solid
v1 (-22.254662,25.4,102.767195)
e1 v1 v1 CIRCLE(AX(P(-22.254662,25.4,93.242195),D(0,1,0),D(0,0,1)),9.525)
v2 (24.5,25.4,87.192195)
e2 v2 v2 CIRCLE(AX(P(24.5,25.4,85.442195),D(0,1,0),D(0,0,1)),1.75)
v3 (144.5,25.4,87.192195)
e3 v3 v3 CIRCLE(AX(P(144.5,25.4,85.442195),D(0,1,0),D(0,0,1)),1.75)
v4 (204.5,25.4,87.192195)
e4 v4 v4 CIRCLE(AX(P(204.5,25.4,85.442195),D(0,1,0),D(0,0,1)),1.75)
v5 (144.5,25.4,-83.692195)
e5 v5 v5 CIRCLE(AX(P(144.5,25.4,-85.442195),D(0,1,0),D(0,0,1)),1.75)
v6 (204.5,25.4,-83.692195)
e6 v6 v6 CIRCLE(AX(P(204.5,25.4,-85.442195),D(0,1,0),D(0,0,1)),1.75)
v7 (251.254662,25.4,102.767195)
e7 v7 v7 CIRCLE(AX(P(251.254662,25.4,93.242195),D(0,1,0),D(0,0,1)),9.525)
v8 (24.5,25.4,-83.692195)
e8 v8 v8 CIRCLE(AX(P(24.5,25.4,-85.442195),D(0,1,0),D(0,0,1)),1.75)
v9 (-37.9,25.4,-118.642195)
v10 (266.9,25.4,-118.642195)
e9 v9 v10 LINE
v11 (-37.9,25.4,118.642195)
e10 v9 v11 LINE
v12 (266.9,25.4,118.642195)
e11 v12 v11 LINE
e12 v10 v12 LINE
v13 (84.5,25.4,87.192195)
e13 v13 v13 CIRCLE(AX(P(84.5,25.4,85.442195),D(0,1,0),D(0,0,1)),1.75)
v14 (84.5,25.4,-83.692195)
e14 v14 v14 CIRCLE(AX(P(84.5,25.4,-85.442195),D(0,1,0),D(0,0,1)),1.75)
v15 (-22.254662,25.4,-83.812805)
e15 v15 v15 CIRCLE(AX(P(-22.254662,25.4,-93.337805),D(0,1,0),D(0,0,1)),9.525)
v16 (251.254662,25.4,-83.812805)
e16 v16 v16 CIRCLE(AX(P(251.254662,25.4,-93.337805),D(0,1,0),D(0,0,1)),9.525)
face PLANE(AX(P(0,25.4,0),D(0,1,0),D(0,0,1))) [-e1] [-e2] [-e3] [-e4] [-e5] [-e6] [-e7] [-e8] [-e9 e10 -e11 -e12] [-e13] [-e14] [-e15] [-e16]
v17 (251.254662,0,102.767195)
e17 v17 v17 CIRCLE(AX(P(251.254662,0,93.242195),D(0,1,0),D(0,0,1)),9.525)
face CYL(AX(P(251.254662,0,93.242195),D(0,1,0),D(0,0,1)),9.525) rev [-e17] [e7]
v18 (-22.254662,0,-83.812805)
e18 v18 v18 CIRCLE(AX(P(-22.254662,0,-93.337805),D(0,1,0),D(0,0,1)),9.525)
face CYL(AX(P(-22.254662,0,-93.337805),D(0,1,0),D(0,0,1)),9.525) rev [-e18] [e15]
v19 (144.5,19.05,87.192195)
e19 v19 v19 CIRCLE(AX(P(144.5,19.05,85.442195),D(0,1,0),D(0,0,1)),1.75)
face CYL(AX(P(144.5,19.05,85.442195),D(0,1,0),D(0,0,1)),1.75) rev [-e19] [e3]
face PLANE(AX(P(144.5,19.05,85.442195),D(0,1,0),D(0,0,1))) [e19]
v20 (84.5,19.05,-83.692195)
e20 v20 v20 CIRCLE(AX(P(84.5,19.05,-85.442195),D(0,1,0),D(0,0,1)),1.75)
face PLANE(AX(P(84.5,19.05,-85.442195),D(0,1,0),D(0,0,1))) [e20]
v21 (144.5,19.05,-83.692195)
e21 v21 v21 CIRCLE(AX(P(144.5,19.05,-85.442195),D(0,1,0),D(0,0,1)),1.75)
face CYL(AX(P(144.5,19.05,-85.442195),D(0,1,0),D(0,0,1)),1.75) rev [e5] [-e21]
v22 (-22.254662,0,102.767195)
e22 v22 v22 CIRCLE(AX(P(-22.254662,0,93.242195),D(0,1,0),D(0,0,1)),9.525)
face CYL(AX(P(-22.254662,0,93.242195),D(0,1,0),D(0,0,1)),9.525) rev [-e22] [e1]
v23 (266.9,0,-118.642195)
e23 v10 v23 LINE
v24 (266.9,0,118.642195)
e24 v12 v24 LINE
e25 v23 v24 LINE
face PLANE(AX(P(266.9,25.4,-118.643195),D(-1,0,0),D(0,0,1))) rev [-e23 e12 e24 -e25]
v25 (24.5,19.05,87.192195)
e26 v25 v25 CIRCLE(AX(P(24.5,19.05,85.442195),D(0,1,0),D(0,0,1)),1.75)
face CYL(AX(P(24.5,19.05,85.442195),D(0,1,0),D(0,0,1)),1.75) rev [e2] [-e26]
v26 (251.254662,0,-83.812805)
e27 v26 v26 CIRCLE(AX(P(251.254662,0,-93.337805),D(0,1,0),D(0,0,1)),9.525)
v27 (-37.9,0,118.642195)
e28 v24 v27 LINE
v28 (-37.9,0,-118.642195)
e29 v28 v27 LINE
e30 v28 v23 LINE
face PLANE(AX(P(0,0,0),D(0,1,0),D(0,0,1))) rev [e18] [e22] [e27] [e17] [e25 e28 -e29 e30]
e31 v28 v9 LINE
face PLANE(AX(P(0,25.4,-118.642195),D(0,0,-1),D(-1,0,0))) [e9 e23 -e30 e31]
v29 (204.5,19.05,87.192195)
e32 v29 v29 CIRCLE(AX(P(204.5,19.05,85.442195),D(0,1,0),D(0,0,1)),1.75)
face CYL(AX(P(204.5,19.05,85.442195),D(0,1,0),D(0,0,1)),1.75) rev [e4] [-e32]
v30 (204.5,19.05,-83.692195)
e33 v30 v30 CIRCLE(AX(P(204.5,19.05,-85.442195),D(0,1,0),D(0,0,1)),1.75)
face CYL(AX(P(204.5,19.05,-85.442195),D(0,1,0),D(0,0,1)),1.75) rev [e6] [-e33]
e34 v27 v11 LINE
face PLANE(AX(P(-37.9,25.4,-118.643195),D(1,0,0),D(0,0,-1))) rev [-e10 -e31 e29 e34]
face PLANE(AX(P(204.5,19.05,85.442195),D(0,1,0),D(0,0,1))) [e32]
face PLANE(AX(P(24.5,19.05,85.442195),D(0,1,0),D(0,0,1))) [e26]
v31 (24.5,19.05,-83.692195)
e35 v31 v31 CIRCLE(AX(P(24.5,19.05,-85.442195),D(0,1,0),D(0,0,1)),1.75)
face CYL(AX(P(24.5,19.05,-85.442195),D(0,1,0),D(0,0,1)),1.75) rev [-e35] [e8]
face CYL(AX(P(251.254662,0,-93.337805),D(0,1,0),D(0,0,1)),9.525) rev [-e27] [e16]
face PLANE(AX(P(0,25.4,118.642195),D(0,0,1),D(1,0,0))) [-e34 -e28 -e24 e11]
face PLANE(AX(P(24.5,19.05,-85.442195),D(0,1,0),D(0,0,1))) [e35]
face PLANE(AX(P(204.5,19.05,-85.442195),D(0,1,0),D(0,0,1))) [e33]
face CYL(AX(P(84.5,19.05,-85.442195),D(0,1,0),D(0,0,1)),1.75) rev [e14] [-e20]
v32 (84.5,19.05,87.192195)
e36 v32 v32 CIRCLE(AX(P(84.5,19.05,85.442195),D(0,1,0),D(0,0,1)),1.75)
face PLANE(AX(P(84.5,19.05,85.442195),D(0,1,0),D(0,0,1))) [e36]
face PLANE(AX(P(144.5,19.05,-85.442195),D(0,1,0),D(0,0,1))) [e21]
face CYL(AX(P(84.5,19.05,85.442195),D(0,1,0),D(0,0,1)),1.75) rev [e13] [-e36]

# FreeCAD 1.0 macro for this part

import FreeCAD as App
import Part
import Sketcher

V = App.Vector
Q = App.Units.Quantity

doc = App.newDocument("Part")
body = doc.addObject("PartDesign::Body", "Body")

sketch1 = body.newObject("Sketcher::SketchObject", "Sketch")
sketch1.AttachmentSupport = (doc.getObject("XZ_Plane"), [""])
sketch1.MapMode = "FlatFace"
sketch1.addGeometry(Part.LineSegment(V(-44.479662, -118.642195, 0), V(-44.479662, 118.642195, 0)), False)
sketch1.addGeometry(Part.LineSegment(V(-44.479662, 118.642195, 0), V(273.479662, 118.642195, 0)), False)
sketch1.addGeometry(Part.LineSegment(V(273.479662, 118.642195, 0), V(273.479662, -118.642195, 0)), False)
sketch1.addGeometry(Part.LineSegment(V(273.479662, -118.642195, 0), V(-44.479662, -118.642195, 0)), False)
sketch1.addConstraint(Sketcher.Constraint("Coincident", 0, 2, 1, 1))
sketch1.addConstraint(Sketcher.Constraint("Coincident", 1, 2, 2, 1))
sketch1.addConstraint(Sketcher.Constraint("Coincident", 2, 2, 3, 1))
sketch1.addConstraint(Sketcher.Constraint("Coincident", 3, 2, 0, 1))
sketch1.addConstraint(Sketcher.Constraint("Vertical", 0))
sketch1.addConstraint(Sketcher.Constraint("Horizontal", 1))
sketch1.addConstraint(Sketcher.Constraint("Vertical", 2))
sketch1.addConstraint(Sketcher.Constraint("Horizontal", 3))
sketch1.addConstraint(Sketcher.Constraint("DistanceY", 0, 1, 0, 2, 237.284389))
sketch1.addConstraint(Sketcher.Constraint("DistanceX", 1, 1, 1, 2, 317.959323))
sketch1.addConstraint(Sketcher.Constraint("DistanceX", 0, 2, -1, 1, 44.479662))
sketch1.addConstraint(Sketcher.Constraint("DistanceY", -1, 1, 0, 2, 118.642195))
pad1 = body.newObject("PartDesign::Pad", "Pad")
pad1.Profile = sketch1
pad1.Length = Q("1 in")
pad1.Reversed = True

sketch2 = body.newObject("Sketcher::SketchObject", "Sketch001")
sketch2.AttachmentSupport = (doc.getObject("XZ_Plane"), [""])
sketch2.MapMode = "FlatFace"
sketch2.AttachmentOffset = App.Placement(V(0, 0, -1 * 25.4), App.Rotation())
sketch2.addGeometry(Part.Circle(V(24.5, -85.442195, 0), V(0, 0, 1), 1.75), False)
sketch2.addGeometry(Part.Circle(V(84.5, -85.442195, 0), V(0, 0, 1), 1.75), False)
sketch2.addGeometry(Part.Circle(V(144.5, -85.442195, 0), V(0, 0, 1), 1.75), False)
sketch2.addGeometry(Part.Circle(V(204.5, -85.442195, 0), V(0, 0, 1), 1.75), False)
sketch2.addGeometry(Part.Circle(V(24.5, 85.442195, 0), V(0, 0, 1), 1.75), False)
sketch2.addGeometry(Part.Circle(V(84.5, 85.442195, 0), V(0, 0, 1), 1.75), False)
sketch2.addGeometry(Part.Circle(V(144.5, 85.442195, 0), V(0, 0, 1), 1.75), False)
sketch2.addGeometry(Part.Circle(V(204.5, 85.442195, 0), V(0, 0, 1), 1.75), False)
sketch2.addConstraint(Sketcher.Constraint("Equal", 0, 1))
sketch2.addConstraint(Sketcher.Constraint("Equal", 1, 2))
sketch2.addConstraint(Sketcher.Constraint("Equal", 2, 3))
sketch2.addConstraint(Sketcher.Constraint("Equal", 3, 4))
sketch2.addConstraint(Sketcher.Constraint("Equal", 4, 5))
sketch2.addConstraint(Sketcher.Constraint("Equal", 5, 6))
sketch2.addConstraint(Sketcher.Constraint("Equal", 6, 7))
sketch2.addConstraint(Sketcher.Constraint("Symmetric", 0, 3, 4, 3, -1))
sketch2.addConstraint(Sketcher.Constraint("Symmetric", 1, 3, 5, 3, -1))
sketch2.addConstraint(Sketcher.Constraint("Symmetric", 2, 3, 6, 3, -1))
sketch2.addConstraint(Sketcher.Constraint("Symmetric", 3, 3, 7, 3, -1))
sketch2.addConstraint(Sketcher.Constraint("Horizontal", 0, 3, 1, 3))
sketch2.addConstraint(Sketcher.Constraint("Horizontal", 1, 3, 2, 3))
sketch2.addConstraint(Sketcher.Constraint("Horizontal", 2, 3, 3, 3))
sketch2.addConstraint(Sketcher.Constraint("Diameter", 0, 3.5))
sketch2.addConstraint(Sketcher.Constraint("DistanceX", -1, 1, 0, 3, 24.5))
sketch2.addConstraint(Sketcher.Constraint("DistanceX", -1, 1, 1, 3, 84.5))
sketch2.addConstraint(Sketcher.Constraint("DistanceX", -1, 1, 2, 3, 144.5))
sketch2.addConstraint(Sketcher.Constraint("DistanceX", -1, 1, 3, 3, 204.5))
sketch2.addConstraint(Sketcher.Constraint("DistanceY", 0, 3, 4, 3, 170.884389))
pocket1 = body.newObject("PartDesign::Pocket", "Pocket")
pocket1.Profile = sketch2
pocket1.Length = Q("0.25 in")
pocket1.Reversed = True

sketch3 = body.newObject("Sketcher::SketchObject", "Sketch002")
sketch3.AttachmentSupport = (doc.getObject("XZ_Plane"), [""])
sketch3.MapMode = "FlatFace"
sketch3.AttachmentOffset = App.Placement(V(0, 0, -1 * 25.4), App.Rotation())
sketch3.addGeometry(Part.Circle(V(-22.254662, 93.242195, 0), V(0, 0, 1), 9.525), False)
sketch3.addGeometry(Part.Circle(V(251.254662, 93.242195, 0), V(0, 0, 1), 9.525), False)
sketch3.addGeometry(Part.Circle(V(251.254662, -93.337805, 0), V(0, 0, 1), 9.525), False)
sketch3.addGeometry(Part.Circle(V(-22.254662, -93.337805, 0), V(0, 0, 1), 9.525), False)
sketch3.addConstraint(Sketcher.Constraint("Equal", 0, 1))
sketch3.addConstraint(Sketcher.Constraint("Equal", 1, 2))
sketch3.addConstraint(Sketcher.Constraint("Equal", 2, 3))
sketch3.addConstraint(Sketcher.Constraint("Horizontal", 0, 3, 1, 3))
sketch3.addConstraint(Sketcher.Constraint("Horizontal", 2, 3, 3, 3))
sketch3.addConstraint(Sketcher.Constraint("Vertical", 1, 3, 2, 3))
sketch3.addConstraint(Sketcher.Constraint("Vertical", 0, 3, 3, 3))
sketch3.addConstraint(Sketcher.Constraint("Diameter", 0, Q("0.75 in")))
sketch3.addConstraint(Sketcher.Constraint("DistanceY", 2, 3, 1, 3, 186.58))
sketch3.addConstraint(Sketcher.Constraint("DistanceX", 0, 3, -1, 1, 22.254662))
sketch3.addConstraint(Sketcher.Constraint("DistanceX", -1, 1, 1, 3, 251.254662))
sketch3.addConstraint(Sketcher.Constraint("DistanceY", -1, 1, 0, 3, 93.242195))
pocket2 = body.newObject("PartDesign::Pocket", "Pocket001")
pocket2.Profile = sketch3
pocket2.Type = "ThroughAll"
pocket2.Reversed = True

sketch4 = body.newObject("Sketcher::SketchObject", "Sketch003")
sketch4.AttachmentSupport = (doc.getObject("XY_Plane"), [""])
sketch4.MapMode = "FlatFace"
sketch4.AttachmentOffset = App.Placement(V(0, 0, 118.642195), App.Rotation())
sketch4.addGeometry(Part.LineSegment(V(-49.675931, 25.4, 0), V(-49.675931, 0, 0)), False)
sketch4.addGeometry(Part.LineSegment(V(-49.675931, 0, 0), V(-37.9, 0, 0)), False)
sketch4.addGeometry(Part.LineSegment(V(-37.9, 0, 0), V(-37.9, 25.4, 0)), False)
sketch4.addGeometry(Part.LineSegment(V(-37.9, 25.4, 0), V(-49.675931, 25.4, 0)), False)
sketch4.addConstraint(Sketcher.Constraint("Coincident", 0, 2, 1, 1))
sketch4.addConstraint(Sketcher.Constraint("Coincident", 1, 2, 2, 1))
sketch4.addConstraint(Sketcher.Constraint("Coincident", 2, 2, 3, 1))
sketch4.addConstraint(Sketcher.Constraint("Coincident", 3, 2, 0, 1))
sketch4.addConstraint(Sketcher.Constraint("Vertical", 0))
sketch4.addConstraint(Sketcher.Constraint("Horizontal", 1))
sketch4.addConstraint(Sketcher.Constraint("Vertical", 2))
sketch4.addConstraint(Sketcher.Constraint("Horizontal", 3))
sketch4.addConstraint(Sketcher.Constraint("PointOnObject", 0, 2, -1))
sketch4.addConstraint(Sketcher.Constraint("DistanceY", 0, 2, 0, 1, Q("1 in")))
sketch4.addConstraint(Sketcher.Constraint("DistanceX", 1, 1, 1, 2, 11.775931))
sketch4.addConstraint(Sketcher.Constraint("DistanceX", 1, 2, -1, 1, 37.9))
pocket3 = body.newObject("PartDesign::Pocket", "Pocket002")
pocket3.Profile = sketch4
pocket3.Type = "UpToFirst"

sketch5 = body.newObject("Sketcher::SketchObject", "Sketch004")
sketch5.AttachmentSupport = (doc.getObject("XY_Plane"), [""])
sketch5.MapMode = "FlatFace"
sketch5.AttachmentOffset = App.Placement(V(0, 0, 118.642195), App.Rotation())
sketch5.addGeometry(Part.LineSegment(V(266.9, 25.4, 0), V(266.9, 0, 0)), False)
sketch5.addGeometry(Part.LineSegment(V(266.9, 0, 0), V(278.032114, 0, 0)), False)
sketch5.addGeometry(Part.LineSegment(V(278.032114, 0, 0), V(278.032114, 25.4, 0)), False)
sketch5.addGeometry(Part.LineSegment(V(278.032114, 25.4, 0), V(266.9, 25.4, 0)), False)
sketch5.addConstraint(Sketcher.Constraint("Coincident", 0, 2, 1, 1))
sketch5.addConstraint(Sketcher.Constraint("Coincident", 1, 2, 2, 1))
sketch5.addConstraint(Sketcher.Constraint("Coincident", 2, 2, 3, 1))
sketch5.addConstraint(Sketcher.Constraint("Coincident", 3, 2, 0, 1))
sketch5.addConstraint(Sketcher.Constraint("Vertical", 0))
sketch5.addConstraint(Sketcher.Constraint("Horizontal", 1))
sketch5.addConstraint(Sketcher.Constraint("Vertical", 2))
sketch5.addConstraint(Sketcher.Constraint("Horizontal", 3))
sketch5.addConstraint(Sketcher.Constraint("PointOnObject", 0, 2, -1))
sketch5.addConstraint(Sketcher.Constraint("DistanceY", 0, 2, 0, 1, Q("1 in")))
sketch5.addConstraint(Sketcher.Constraint("DistanceX", -1, 1, 0, 2, 266.9))
sketch5.addConstraint(Sketcher.Constraint("DistanceX", 1, 1, 1, 2, 11.132114))
pocket4 = body.newObject("PartDesign::Pocket", "Pocket003")
pocket4.Profile = sketch5
pocket4.Type = "UpToFirst"

doc.recompute()
